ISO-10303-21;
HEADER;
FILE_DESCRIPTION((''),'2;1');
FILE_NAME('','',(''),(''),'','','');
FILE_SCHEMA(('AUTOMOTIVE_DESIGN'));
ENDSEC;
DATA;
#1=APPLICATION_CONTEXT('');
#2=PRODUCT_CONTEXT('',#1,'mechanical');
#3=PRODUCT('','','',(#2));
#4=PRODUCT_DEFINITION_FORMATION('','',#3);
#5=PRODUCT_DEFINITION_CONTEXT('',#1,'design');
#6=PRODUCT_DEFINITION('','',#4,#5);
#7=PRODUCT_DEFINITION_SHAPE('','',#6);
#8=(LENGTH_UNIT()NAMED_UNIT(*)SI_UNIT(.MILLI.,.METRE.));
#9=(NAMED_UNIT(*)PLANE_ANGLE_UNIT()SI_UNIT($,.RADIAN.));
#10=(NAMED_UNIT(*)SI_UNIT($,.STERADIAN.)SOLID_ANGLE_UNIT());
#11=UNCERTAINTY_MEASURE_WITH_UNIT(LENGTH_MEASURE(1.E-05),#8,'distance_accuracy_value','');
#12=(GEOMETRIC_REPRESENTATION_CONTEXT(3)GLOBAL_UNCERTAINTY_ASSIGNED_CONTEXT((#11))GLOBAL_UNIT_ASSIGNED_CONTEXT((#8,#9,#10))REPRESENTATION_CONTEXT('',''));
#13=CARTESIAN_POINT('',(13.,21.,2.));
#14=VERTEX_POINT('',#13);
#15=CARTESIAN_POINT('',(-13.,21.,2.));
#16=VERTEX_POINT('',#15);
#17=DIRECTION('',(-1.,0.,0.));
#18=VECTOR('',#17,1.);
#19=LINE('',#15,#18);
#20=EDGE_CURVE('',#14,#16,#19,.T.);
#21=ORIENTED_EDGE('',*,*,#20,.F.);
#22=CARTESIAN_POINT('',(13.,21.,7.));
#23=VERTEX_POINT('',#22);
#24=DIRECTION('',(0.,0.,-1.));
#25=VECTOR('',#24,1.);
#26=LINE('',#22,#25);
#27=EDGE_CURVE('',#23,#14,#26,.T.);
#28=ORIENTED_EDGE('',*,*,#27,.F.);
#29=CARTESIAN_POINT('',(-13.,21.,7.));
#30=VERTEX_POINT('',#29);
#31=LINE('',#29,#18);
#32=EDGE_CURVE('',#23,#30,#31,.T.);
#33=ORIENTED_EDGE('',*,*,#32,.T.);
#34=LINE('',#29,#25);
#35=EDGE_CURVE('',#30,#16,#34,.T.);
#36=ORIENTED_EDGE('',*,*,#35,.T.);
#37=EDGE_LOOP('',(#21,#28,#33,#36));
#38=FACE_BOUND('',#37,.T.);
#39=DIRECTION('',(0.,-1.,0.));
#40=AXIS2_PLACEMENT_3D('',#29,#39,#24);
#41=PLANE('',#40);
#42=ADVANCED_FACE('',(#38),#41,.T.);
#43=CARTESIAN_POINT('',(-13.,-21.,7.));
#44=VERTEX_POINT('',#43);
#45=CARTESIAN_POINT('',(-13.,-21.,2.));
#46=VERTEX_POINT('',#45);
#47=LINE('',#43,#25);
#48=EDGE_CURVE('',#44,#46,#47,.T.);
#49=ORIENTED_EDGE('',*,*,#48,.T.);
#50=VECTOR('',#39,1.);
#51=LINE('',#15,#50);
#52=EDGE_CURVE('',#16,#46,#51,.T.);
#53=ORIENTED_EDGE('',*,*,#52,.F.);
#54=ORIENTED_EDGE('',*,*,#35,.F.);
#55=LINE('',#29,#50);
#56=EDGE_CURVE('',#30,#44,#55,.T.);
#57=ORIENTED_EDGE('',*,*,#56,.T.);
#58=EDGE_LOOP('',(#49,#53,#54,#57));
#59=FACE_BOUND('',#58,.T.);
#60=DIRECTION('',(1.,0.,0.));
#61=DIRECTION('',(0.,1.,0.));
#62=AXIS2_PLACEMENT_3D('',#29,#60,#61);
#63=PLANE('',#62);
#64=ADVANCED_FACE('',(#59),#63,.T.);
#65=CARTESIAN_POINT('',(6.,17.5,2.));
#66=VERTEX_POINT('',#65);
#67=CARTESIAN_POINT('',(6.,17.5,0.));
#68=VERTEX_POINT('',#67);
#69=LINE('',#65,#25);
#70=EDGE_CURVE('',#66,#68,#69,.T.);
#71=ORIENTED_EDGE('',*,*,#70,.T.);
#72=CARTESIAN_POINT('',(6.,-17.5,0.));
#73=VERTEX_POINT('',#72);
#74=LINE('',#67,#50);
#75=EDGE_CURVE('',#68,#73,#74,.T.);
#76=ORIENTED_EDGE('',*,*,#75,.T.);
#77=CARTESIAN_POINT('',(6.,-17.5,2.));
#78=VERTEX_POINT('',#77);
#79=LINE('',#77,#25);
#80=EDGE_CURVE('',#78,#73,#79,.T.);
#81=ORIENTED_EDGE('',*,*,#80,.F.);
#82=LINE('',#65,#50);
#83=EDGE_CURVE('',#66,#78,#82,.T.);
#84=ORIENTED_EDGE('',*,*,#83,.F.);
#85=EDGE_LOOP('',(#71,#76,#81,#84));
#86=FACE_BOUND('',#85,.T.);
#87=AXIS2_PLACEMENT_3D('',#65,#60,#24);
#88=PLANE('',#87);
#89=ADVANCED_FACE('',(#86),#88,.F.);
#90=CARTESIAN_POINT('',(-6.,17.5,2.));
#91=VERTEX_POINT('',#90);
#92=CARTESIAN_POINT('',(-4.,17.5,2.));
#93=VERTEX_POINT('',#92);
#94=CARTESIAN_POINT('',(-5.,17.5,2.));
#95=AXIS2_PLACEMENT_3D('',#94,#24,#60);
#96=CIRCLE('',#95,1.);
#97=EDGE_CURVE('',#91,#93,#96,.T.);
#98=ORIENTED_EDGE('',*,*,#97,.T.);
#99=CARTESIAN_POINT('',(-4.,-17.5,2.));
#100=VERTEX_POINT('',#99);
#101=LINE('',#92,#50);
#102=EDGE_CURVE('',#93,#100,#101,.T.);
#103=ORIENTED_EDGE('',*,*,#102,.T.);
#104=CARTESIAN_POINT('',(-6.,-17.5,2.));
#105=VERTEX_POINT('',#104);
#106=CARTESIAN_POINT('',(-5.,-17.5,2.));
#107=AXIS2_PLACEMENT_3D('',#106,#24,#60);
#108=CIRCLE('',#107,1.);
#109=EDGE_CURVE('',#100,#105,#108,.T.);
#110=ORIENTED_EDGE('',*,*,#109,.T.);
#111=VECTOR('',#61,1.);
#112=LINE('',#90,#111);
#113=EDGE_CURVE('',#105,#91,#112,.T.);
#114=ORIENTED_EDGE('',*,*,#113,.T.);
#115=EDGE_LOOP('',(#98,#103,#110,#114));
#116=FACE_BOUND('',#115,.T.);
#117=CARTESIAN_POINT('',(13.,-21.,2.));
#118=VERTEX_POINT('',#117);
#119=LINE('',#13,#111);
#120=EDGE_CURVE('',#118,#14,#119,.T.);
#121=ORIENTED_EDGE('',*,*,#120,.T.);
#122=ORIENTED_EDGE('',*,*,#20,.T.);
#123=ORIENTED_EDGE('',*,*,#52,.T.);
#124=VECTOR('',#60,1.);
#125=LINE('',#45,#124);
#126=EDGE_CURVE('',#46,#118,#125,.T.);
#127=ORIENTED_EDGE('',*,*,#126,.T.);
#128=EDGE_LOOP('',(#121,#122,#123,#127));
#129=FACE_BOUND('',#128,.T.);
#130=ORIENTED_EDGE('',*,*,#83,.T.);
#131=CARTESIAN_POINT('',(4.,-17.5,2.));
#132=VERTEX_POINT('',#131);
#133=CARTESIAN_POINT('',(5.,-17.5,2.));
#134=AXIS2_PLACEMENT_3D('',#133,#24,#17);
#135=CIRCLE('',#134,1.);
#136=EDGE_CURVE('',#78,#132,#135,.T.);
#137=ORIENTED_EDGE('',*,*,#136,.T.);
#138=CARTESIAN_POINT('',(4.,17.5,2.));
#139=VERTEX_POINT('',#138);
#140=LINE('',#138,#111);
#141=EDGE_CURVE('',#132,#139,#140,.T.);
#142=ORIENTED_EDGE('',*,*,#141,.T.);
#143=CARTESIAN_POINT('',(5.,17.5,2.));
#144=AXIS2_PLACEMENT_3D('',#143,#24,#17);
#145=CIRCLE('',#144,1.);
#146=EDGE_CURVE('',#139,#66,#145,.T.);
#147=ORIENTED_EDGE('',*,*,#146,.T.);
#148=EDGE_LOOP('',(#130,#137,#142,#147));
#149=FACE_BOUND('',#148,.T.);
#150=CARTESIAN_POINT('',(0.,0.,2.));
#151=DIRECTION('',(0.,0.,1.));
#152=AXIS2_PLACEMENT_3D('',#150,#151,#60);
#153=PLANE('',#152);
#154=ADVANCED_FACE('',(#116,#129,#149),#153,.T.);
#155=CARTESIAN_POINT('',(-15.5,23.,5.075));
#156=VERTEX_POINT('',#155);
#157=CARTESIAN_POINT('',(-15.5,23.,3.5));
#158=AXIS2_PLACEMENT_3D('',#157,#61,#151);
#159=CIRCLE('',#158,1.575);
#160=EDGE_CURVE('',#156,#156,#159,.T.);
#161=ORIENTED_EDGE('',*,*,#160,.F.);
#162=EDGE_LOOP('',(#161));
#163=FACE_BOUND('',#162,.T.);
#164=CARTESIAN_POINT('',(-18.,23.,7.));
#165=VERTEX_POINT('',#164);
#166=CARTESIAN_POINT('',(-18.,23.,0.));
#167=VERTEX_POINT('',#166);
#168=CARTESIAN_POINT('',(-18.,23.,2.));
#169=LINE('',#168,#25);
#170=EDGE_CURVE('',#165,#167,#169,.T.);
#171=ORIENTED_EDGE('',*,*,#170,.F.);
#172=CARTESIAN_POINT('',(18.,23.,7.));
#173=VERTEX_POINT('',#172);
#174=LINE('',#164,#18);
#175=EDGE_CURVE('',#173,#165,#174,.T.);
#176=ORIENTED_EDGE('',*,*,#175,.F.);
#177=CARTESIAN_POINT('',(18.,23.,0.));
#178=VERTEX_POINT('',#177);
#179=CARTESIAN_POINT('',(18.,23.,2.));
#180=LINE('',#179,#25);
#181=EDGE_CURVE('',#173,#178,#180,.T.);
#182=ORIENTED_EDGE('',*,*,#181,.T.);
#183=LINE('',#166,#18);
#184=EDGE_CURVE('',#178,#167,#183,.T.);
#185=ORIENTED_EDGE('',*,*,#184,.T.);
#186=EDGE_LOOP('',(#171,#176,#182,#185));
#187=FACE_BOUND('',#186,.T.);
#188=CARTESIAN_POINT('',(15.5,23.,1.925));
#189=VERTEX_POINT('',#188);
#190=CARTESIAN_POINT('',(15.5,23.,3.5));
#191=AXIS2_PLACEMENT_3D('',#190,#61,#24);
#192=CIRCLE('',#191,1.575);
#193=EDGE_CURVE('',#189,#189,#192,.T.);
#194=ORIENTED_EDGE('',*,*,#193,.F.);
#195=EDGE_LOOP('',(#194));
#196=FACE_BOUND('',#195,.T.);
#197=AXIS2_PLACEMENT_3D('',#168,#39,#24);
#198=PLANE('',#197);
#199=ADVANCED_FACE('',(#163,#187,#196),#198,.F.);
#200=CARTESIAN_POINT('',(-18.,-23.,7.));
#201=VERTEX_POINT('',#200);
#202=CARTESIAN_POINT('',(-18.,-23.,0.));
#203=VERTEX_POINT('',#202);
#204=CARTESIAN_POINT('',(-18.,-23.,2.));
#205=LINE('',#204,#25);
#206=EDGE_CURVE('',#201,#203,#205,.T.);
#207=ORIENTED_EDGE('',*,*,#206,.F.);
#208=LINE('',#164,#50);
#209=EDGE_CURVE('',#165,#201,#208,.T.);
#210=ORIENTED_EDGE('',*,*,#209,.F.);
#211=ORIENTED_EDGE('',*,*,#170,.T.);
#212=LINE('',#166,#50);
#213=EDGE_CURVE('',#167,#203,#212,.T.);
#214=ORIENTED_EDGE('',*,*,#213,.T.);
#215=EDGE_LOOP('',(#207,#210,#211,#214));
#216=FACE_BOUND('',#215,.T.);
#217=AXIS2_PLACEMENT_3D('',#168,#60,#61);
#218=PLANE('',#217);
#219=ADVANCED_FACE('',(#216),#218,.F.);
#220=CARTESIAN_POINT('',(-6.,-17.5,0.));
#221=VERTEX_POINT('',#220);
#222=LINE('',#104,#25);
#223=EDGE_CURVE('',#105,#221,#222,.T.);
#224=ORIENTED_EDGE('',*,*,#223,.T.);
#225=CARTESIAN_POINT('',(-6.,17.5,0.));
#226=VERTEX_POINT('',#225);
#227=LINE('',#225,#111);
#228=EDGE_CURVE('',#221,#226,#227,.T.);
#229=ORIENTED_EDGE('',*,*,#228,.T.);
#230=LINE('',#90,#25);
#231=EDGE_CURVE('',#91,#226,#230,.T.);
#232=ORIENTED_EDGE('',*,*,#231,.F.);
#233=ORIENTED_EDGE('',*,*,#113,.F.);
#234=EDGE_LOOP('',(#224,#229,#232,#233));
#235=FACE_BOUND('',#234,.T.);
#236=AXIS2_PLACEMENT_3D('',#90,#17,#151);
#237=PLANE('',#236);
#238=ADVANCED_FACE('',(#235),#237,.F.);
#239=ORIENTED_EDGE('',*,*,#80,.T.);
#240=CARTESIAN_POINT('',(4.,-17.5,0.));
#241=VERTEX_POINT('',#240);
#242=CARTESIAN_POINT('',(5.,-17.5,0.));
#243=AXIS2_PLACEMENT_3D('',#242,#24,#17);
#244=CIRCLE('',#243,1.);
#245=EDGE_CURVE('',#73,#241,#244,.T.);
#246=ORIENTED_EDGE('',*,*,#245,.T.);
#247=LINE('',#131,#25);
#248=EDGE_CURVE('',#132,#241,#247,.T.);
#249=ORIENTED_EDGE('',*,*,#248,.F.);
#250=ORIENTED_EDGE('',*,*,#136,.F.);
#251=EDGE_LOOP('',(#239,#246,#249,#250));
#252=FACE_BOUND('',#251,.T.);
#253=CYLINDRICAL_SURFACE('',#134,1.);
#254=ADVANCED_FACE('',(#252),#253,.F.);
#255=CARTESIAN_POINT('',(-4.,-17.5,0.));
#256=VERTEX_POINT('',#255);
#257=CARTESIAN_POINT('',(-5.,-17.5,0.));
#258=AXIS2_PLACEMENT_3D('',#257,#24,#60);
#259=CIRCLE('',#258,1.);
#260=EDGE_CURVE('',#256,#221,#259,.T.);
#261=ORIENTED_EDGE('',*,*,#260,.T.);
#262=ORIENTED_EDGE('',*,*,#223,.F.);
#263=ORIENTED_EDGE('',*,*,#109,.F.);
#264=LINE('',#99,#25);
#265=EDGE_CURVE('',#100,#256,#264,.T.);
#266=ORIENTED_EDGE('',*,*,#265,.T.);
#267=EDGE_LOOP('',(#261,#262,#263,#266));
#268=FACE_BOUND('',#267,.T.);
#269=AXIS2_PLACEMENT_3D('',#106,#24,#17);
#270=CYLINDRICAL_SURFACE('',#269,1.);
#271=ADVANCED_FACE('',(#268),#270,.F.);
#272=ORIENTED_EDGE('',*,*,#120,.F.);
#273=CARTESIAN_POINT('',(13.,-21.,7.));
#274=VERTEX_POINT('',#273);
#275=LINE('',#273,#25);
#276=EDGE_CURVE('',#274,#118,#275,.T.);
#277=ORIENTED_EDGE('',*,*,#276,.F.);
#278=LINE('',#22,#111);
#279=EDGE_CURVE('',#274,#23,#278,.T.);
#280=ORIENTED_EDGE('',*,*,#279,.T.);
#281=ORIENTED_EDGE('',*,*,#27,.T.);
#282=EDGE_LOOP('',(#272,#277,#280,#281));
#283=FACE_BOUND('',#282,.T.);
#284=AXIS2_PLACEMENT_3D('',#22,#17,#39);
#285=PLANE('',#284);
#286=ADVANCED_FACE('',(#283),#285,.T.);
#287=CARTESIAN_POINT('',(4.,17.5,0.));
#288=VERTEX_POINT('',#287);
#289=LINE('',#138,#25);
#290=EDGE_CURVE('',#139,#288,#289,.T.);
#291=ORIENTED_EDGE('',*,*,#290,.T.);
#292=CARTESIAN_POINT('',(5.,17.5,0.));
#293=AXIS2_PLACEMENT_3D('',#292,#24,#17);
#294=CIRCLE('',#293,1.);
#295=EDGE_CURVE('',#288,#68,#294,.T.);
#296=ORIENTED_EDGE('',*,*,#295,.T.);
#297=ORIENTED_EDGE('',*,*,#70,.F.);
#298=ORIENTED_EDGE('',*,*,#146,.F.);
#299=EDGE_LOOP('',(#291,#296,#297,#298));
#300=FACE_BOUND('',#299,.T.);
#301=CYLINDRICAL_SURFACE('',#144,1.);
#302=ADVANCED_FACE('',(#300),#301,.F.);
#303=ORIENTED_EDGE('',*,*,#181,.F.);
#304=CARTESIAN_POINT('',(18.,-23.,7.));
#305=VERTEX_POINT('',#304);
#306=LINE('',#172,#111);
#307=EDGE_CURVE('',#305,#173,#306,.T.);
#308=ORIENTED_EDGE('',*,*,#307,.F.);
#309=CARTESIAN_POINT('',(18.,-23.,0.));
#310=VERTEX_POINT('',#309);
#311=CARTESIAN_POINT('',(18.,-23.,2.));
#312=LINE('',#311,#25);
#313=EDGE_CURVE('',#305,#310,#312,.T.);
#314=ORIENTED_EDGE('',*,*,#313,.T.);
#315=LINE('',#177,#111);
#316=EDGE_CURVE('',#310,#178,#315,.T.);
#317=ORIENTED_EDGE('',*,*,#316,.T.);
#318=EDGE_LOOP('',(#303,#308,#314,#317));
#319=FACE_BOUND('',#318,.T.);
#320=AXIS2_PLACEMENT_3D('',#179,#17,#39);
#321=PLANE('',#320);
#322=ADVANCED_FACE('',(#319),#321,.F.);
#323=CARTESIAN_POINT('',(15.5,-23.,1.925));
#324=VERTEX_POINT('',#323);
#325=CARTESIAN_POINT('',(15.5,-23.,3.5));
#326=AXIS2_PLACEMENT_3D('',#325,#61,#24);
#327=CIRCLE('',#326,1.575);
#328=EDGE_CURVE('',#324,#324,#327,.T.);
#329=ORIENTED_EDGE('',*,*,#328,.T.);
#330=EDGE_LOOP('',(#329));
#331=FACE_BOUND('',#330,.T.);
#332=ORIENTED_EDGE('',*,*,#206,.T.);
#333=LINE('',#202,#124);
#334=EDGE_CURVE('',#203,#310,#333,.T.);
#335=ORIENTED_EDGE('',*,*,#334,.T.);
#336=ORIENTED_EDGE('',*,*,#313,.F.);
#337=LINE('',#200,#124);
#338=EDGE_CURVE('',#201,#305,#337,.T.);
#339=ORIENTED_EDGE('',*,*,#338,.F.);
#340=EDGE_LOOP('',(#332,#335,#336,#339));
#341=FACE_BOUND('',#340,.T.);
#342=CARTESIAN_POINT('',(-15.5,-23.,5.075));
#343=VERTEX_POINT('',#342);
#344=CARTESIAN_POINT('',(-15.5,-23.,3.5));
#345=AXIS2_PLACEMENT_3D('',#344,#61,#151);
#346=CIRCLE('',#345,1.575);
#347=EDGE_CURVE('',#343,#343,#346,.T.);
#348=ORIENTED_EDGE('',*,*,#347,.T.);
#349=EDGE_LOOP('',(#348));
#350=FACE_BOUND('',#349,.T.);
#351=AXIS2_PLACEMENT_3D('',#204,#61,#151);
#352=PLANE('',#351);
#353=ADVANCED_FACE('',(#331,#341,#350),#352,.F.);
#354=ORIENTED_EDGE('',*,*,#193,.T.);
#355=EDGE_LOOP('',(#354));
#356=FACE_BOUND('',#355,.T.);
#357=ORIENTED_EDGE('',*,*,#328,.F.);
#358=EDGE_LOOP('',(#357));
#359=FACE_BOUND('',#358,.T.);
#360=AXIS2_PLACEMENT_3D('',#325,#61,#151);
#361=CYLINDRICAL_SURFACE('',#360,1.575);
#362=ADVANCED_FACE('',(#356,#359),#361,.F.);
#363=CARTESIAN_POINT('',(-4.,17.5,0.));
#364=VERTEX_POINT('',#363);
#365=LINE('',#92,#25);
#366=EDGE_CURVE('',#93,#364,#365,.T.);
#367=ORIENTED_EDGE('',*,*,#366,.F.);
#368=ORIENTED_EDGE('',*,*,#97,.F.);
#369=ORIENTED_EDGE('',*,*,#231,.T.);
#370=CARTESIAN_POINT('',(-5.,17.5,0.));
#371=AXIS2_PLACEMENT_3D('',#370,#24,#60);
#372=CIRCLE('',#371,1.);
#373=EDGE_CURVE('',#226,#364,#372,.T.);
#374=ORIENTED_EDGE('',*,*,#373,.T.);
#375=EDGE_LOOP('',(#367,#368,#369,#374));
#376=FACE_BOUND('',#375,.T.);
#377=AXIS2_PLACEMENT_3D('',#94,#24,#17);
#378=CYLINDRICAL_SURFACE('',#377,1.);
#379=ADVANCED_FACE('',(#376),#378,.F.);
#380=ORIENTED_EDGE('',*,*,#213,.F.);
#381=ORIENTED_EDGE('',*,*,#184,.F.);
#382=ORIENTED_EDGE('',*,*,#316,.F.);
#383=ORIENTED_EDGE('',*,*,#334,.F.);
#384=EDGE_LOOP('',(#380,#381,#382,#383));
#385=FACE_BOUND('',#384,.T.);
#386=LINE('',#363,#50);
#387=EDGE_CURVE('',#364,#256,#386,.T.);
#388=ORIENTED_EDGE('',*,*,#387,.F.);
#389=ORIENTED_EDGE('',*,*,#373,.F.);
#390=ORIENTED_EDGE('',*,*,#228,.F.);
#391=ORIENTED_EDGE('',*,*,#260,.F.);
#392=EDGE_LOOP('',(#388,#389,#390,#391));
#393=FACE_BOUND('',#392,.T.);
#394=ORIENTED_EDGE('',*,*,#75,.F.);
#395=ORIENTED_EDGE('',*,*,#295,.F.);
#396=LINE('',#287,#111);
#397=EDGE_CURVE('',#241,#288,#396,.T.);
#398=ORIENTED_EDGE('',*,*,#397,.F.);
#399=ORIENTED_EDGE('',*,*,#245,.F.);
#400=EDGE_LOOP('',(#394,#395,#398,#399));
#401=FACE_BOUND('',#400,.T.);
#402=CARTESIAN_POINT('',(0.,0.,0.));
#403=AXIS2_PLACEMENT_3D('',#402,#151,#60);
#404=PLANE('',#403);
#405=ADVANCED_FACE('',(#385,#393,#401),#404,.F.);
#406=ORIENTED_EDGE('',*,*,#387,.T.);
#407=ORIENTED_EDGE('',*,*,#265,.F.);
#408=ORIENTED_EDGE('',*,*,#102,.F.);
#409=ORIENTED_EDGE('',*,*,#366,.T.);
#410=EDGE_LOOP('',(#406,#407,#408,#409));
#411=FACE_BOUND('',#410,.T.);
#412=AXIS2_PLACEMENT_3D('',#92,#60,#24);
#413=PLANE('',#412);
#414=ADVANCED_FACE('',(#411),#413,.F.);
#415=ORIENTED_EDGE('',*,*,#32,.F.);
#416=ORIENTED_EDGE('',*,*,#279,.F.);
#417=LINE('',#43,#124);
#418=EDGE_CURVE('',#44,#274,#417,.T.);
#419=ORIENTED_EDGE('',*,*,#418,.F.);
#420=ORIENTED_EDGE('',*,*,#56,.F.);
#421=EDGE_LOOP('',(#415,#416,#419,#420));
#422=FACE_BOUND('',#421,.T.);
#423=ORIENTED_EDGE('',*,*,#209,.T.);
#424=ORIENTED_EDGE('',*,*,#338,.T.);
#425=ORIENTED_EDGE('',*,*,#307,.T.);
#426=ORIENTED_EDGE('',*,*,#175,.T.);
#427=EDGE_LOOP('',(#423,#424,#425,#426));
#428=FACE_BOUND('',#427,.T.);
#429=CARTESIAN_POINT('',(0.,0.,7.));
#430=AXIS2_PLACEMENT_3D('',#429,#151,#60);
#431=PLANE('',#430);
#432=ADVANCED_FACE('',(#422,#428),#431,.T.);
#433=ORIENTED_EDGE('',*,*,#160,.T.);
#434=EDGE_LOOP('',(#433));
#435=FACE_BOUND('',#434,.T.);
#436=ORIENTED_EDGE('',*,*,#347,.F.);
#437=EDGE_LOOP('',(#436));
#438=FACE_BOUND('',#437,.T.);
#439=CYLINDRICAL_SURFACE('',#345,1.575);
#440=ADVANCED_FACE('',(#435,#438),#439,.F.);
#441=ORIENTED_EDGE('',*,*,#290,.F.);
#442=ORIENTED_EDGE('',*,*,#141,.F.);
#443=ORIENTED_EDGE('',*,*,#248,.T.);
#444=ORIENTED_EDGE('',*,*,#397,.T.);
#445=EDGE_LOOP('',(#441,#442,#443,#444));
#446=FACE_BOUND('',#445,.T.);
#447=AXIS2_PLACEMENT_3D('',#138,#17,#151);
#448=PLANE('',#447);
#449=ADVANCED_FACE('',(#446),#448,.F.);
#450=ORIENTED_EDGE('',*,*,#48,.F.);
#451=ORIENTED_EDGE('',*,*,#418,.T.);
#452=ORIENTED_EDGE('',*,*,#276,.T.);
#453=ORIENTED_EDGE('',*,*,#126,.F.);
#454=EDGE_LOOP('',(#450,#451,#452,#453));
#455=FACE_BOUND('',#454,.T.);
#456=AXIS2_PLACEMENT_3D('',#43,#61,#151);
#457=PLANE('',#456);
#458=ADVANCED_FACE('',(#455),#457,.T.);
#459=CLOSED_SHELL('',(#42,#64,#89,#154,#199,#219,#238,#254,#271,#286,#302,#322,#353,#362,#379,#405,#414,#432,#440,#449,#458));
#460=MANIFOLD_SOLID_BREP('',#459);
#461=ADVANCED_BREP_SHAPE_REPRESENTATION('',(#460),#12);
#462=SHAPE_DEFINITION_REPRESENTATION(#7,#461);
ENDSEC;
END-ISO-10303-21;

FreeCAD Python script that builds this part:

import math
import FreeCAD as App
import Part
import Sketcher
from FreeCAD import Vector


def add_polygon(sketch, points):
    """Adds a closed chain of lines whose ends are joined by coincident constraints."""
    first, n = sketch.GeometryCount, len(points)
    for a, b in zip(points, points[1:] + points[:1]):
        sketch.addGeometry(Part.LineSegment(App.Vector(*a, 0), App.Vector(*b, 0)), False)
    for i in range(n):
        sketch.addConstraint(Sketcher.Constraint("Coincident", first + i, 2, first + (i + 1) % n, 1))

doc = App.newDocument("Part")
body = doc.addObject("PartDesign::Body", "Body")

# Sketch on XY plane
sketch1 = doc.addObject("Sketcher::SketchObject", "Sketch")
body.addObject(sketch1)
sketch1.AttachmentSupport = (doc.XY_Plane, [""])
sketch1.MapMode = "FlatFace"
add_polygon(sketch1, [(-18, 23), (-18, -23), (18, -23), (18, 23)])  # lines 0-3
sketch1.addConstraint([
    Sketcher.Constraint("Vertical", 0),
    Sketcher.Constraint("Horizontal", 1),
    Sketcher.Constraint("Vertical", 2),
    Sketcher.Constraint("Horizontal", 3),
    Sketcher.Constraint("Symmetric", 0, 2, 2, 2, -1, 1),
    Sketcher.Constraint("DistanceX", 1, 1, 1, 2, 36.0),
    Sketcher.Constraint("DistanceY", 0, 2, 0, 1, 46.0),
])
pad1 = doc.addObject("PartDesign::Pad", "Pad")
body.addObject(pad1)
pad1.Profile = sketch1
pad1.Length = 2

# Sketch on XY plane
sketch2 = doc.addObject("Sketcher::SketchObject", "Sketch001")
body.addObject(sketch2)
sketch2.AttachmentSupport = (doc.XY_Plane, [""])
sketch2.MapMode = "FlatFace"
sketch2.AttachmentOffset = App.Placement(Vector(0, 0, 2), App.Rotation())
add_polygon(sketch2, [(-18, 23), (-18, -23), (18, -23), (18, 23)])  # lines 0-3
add_polygon(sketch2, [(13, -21), (-13, -21), (-13, 21), (13, 21)])  # lines 4-7
sketch2.addConstraint([
    Sketcher.Constraint("Vertical", 0),
    Sketcher.Constraint("Horizontal", 1),
    Sketcher.Constraint("Vertical", 2),
    Sketcher.Constraint("Horizontal", 3),
    Sketcher.Constraint("Horizontal", 4),
    Sketcher.Constraint("Vertical", 5),
    Sketcher.Constraint("Horizontal", 6),
    Sketcher.Constraint("Vertical", 7),
    Sketcher.Constraint("Symmetric", 0, 2, 2, 2, -1, 1),
    Sketcher.Constraint("Symmetric", 4, 2, 6, 2, -1, 1),
    Sketcher.Constraint("DistanceX", 1, 1, 1, 2, 36.0),
    Sketcher.Constraint("DistanceX", 4, 2, 4, 1, 26.0),
    Sketcher.Constraint("DistanceY", 0, 2, 0, 1, 46.0),
    Sketcher.Constraint("DistanceY", 5, 1, 5, 2, 42.0),
])
pad2 = doc.addObject("PartDesign::Pad", "Pad001")
body.addObject(pad2)
pad2.Profile = sketch2
pad2.Length = 5

# Sketch on XZ plane
sketch3 = doc.addObject("Sketcher::SketchObject", "Sketch002")
body.addObject(sketch3)
sketch3.AttachmentSupport = (doc.XZ_Plane, [""])
sketch3.MapMode = "FlatFace"
sketch3.AttachmentOffset = App.Placement(Vector(0, 0, -23), App.Rotation())
sketch3.addGeometry([
    Part.Circle(Vector(-15.5, 3.5, 0), Vector(0, 0, 1), 1.6),
    Part.Circle(Vector(15.5, 3.5, 0), Vector(0, 0, 1), 1.6),
], False)
sketch3.addConstraint([
    Sketcher.Constraint("Equal", 0, 1),
    Sketcher.Constraint("Symmetric", 0, 3, 1, 3, -2),
    Sketcher.Constraint("Diameter", 0, 3.15),
    Sketcher.Constraint("DistanceX", 0, 3, 1, 3, 31.0),
    Sketcher.Constraint("DistanceY", -1, 1, 0, 3, 3.5),
])
pocket1 = doc.addObject("PartDesign::Pocket", "Pocket")
body.addObject(pocket1)
pocket1.Profile = sketch3
pocket1.Type = "ThroughAll"
pocket1.Reversed = True

# Sketch on XY plane
sketch4 = doc.addObject("Sketcher::SketchObject", "Sketch003")
body.addObject(sketch4)
sketch4.AttachmentSupport = (doc.XY_Plane, [""])
sketch4.MapMode = "FlatFace"
sketch4.addGeometry([
    Part.LineSegment(Vector(4, -17.5, 0), Vector(4, 17.5, 0)),  # 0
    Part.ArcOfCircle(Part.Circle(Vector(5, 17.5, 0), Vector(0, 0, 1), 1), math.radians(0), math.radians(180)),  # 1
    Part.LineSegment(Vector(6, 17.5, 0), Vector(6, -17.5, 0)),  # 2
    Part.ArcOfCircle(Part.Circle(Vector(5, -17.5, 0), Vector(0, 0, 1), 1), math.radians(180), math.radians(360)),  # 3
    Part.LineSegment(Vector(-4, 17.5, 0), Vector(-4, -17.5, 0)),  # 4
    Part.ArcOfCircle(Part.Circle(Vector(-5, -17.5, 0), Vector(0, 0, 1), 1), math.radians(180), math.radians(360)),  # 5
    Part.LineSegment(Vector(-6, -17.5, 0), Vector(-6, 17.5, 0)),  # 6
    Part.ArcOfCircle(Part.Circle(Vector(-5, 17.5, 0), Vector(0, 0, 1), 1), math.radians(0), math.radians(180)),  # 7
], False)
sketch4.addConstraint([
    Sketcher.Constraint("Tangent", 0, 2, 1, 2),
    Sketcher.Constraint("Tangent", 1, 1, 2, 1),
    Sketcher.Constraint("Tangent", 2, 2, 3, 2),
    Sketcher.Constraint("Tangent", 3, 1, 0, 1),
    Sketcher.Constraint("Tangent", 4, 2, 5, 2),
    Sketcher.Constraint("Tangent", 5, 1, 6, 1),
    Sketcher.Constraint("Tangent", 6, 2, 7, 2),
    Sketcher.Constraint("Tangent", 7, 1, 4, 1),
    Sketcher.Constraint("Vertical", 0),
    Sketcher.Constraint("Vertical", 2),
    Sketcher.Constraint("Vertical", 4),
    Sketcher.Constraint("Vertical", 6),
    Sketcher.Constraint("Equal", 3, 5),
    Sketcher.Constraint("Symmetric", 1, 3, 5, 3, -1, 1),
    Sketcher.Constraint("Horizontal", 3, 3, 5, 3),
    Sketcher.Constraint("Horizontal", 1, 3, 7, 3),
    Sketcher.Constraint("Radius", 1, 1.0),
    Sketcher.Constraint("DistanceY", 0, 1, 0, 2, 35.0),
    Sketcher.Constraint("DistanceX", -1, 1, 1, 3, 5.0),
])
pocket2 = doc.addObject("PartDesign::Pocket", "Pocket001")
body.addObject(pocket2)
pocket2.Profile = sketch4
pocket2.Length = 2
pocket2.Reversed = True

doc.recompute()
